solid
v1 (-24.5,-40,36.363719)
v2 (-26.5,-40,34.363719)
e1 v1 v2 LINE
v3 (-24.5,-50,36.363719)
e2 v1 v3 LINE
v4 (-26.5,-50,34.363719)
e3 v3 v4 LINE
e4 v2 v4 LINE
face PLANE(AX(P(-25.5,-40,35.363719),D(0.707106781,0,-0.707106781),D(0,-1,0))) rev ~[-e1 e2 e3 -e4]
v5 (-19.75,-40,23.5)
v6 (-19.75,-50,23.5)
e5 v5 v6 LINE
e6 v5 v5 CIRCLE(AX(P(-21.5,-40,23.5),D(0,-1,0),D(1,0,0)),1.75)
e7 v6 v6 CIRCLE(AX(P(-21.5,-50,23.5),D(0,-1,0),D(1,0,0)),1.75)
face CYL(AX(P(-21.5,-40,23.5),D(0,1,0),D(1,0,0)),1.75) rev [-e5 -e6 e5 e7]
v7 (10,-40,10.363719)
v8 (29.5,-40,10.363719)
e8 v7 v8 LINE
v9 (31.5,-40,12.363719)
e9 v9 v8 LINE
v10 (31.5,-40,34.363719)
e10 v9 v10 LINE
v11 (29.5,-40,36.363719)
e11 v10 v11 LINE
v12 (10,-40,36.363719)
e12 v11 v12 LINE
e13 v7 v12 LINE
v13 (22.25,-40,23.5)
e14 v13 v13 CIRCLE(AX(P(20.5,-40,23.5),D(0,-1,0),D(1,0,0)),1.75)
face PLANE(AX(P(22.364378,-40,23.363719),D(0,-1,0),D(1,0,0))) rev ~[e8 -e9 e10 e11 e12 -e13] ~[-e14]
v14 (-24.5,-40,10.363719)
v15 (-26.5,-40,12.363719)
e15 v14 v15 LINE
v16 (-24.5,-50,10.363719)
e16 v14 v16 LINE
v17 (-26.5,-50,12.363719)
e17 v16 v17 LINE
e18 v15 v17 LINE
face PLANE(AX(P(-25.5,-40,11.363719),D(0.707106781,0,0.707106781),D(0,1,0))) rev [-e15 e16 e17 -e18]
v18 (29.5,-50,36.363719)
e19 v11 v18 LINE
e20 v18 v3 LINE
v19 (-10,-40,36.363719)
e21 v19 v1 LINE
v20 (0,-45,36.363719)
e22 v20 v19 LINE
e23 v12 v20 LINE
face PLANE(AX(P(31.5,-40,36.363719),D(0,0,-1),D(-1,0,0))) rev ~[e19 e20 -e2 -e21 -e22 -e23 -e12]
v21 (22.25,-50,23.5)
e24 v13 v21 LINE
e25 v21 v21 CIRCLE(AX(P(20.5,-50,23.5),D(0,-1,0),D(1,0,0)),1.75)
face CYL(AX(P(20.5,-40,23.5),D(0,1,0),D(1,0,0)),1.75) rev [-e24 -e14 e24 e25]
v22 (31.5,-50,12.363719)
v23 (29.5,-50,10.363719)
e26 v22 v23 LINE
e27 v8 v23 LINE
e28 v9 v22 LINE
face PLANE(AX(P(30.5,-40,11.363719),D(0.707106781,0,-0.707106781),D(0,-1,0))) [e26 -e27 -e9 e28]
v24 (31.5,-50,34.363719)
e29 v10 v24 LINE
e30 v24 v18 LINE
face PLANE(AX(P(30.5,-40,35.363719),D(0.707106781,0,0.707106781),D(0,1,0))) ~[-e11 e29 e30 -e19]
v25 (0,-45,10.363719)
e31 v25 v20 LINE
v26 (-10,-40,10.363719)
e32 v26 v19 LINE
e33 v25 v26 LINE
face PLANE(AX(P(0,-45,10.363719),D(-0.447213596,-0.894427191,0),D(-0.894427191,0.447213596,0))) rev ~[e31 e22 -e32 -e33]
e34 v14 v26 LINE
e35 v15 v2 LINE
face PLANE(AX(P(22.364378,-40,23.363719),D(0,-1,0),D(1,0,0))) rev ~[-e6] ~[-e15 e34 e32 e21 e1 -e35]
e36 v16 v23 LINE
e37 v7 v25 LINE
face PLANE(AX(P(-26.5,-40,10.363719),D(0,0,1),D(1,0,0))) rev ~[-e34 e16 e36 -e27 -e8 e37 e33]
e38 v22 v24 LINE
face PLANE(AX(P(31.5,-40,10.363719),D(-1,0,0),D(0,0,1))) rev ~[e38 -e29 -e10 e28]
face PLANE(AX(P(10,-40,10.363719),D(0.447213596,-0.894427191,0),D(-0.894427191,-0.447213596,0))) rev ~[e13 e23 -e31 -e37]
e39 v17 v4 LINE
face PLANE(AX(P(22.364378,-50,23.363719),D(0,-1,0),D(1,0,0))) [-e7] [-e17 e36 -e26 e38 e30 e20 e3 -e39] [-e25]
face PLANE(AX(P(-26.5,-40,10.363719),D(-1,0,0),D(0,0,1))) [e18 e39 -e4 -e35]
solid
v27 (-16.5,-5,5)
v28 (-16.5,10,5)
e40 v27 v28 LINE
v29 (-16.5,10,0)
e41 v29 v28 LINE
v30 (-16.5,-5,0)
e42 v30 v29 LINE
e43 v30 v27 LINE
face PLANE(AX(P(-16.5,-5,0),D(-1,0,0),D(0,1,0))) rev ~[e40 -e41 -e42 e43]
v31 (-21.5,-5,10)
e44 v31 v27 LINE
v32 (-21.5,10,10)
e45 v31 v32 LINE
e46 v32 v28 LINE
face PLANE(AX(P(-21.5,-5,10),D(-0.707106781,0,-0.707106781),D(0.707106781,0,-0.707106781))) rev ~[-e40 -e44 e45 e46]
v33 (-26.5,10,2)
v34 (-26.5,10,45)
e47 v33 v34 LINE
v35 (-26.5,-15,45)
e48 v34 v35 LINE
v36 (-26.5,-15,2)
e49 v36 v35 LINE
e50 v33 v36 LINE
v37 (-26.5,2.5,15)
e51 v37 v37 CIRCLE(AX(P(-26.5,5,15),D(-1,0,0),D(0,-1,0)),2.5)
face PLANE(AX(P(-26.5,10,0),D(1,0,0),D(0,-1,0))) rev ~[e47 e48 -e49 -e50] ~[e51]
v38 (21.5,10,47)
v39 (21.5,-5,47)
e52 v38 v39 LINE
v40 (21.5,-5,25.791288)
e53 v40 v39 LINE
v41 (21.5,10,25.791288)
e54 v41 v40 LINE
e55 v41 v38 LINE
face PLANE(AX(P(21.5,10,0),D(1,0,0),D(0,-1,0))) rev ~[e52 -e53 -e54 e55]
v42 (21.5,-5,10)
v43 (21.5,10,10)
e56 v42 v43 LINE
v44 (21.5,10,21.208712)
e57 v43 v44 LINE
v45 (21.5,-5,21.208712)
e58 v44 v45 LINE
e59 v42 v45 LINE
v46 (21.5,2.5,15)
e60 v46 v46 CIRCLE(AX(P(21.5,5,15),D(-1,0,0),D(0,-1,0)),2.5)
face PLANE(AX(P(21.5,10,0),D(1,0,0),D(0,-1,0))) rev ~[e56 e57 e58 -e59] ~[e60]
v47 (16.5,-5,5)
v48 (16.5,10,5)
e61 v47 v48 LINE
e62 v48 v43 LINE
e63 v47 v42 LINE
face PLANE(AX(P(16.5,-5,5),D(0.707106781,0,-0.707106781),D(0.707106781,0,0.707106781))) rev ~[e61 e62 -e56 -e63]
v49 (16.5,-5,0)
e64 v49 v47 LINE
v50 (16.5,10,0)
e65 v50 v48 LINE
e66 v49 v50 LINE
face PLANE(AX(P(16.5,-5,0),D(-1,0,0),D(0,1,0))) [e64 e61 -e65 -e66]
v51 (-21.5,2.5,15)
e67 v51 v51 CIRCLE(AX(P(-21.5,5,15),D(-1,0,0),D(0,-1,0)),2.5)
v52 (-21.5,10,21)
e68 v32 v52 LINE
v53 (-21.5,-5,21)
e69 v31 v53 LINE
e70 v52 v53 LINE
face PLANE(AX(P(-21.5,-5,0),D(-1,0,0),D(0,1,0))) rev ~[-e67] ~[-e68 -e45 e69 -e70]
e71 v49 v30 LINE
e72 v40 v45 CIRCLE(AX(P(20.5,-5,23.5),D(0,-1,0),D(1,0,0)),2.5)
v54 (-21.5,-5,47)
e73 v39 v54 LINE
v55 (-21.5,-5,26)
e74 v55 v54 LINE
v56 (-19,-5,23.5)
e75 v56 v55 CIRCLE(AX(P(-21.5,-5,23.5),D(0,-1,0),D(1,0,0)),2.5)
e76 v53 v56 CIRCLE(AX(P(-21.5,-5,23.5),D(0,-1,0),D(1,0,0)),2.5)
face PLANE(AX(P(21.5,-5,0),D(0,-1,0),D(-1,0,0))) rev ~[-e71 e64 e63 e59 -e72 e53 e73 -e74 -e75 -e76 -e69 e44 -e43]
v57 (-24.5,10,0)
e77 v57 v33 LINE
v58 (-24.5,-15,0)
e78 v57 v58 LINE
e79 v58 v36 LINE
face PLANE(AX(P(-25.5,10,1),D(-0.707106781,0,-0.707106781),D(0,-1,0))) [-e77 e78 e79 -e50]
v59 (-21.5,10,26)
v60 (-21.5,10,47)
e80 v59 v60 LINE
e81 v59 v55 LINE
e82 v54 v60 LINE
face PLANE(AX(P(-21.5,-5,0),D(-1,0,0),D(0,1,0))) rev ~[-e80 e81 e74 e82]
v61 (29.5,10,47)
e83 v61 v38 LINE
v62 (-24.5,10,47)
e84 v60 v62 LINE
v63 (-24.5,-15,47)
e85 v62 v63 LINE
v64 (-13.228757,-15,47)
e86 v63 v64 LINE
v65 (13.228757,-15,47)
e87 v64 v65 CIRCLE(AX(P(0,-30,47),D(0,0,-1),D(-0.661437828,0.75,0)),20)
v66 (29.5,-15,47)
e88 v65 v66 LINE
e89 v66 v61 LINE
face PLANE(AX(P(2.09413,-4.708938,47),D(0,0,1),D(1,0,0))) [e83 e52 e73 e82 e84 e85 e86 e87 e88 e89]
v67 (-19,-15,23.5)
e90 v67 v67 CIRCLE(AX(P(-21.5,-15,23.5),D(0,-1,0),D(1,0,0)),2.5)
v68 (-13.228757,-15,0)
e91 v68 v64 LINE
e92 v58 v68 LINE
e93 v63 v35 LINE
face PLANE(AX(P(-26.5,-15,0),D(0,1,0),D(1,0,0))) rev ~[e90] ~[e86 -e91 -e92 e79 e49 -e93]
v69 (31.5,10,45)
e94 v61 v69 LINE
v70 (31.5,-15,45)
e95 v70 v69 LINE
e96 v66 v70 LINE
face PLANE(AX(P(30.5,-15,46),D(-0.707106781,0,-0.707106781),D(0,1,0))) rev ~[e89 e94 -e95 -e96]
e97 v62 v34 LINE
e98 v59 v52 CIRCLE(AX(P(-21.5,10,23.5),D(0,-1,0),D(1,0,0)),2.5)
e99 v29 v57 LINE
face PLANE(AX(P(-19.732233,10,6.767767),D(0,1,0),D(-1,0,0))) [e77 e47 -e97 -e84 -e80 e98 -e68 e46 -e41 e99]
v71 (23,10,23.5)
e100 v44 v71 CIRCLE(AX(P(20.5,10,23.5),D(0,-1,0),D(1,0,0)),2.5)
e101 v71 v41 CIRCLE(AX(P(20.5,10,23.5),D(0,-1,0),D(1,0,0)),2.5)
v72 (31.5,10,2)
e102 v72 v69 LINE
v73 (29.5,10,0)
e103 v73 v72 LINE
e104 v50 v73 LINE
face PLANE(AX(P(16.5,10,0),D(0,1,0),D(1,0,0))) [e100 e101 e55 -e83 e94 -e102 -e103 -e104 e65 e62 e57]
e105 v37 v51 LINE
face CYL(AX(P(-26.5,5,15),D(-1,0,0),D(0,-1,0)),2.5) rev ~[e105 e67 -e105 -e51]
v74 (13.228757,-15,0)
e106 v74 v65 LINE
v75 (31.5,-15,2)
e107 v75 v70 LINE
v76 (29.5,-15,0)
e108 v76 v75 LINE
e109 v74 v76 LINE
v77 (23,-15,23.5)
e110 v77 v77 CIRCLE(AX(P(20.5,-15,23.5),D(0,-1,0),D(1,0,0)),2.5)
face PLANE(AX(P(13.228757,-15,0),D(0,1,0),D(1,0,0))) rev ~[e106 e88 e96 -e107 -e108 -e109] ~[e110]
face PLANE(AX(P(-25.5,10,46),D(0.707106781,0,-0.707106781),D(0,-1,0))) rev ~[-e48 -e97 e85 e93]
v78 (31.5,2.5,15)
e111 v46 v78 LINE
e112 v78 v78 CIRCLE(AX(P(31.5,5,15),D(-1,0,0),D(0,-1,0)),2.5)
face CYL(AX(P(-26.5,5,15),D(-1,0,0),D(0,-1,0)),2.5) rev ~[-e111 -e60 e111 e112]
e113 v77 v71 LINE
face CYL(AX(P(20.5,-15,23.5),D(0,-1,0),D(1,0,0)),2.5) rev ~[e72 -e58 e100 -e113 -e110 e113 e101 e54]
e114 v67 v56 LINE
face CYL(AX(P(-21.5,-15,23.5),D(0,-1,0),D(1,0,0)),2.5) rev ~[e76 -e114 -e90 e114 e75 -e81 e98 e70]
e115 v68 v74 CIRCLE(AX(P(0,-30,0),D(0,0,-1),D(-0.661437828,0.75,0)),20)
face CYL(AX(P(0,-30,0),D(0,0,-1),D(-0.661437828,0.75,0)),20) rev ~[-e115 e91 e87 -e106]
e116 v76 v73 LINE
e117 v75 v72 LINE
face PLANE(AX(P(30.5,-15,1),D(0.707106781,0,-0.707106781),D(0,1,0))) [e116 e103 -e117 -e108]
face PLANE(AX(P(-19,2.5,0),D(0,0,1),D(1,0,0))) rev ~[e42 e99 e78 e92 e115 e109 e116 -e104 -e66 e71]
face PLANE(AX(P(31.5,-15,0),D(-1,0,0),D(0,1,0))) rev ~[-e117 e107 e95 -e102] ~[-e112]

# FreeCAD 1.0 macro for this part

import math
import FreeCAD as App
import Part
import Sketcher
Q = App.Units.Quantity


def edges_at(feature, points):
    """Names of the edges that pass closest to the given points."""
    edges = feature.Shape.Edges
    near = lambda p: min(range(len(edges)), key=lambda i: edges[i].distToShape(Part.Vertex(*p))[0])
    return sorted({f"Edge{near(p) + 1}" for p in points})

doc = App.newDocument("Part")
body = doc.addObject("PartDesign::Body", "Body")

# Sketch on XY plane
sketch1 = body.newObject("Sketcher::SketchObject", "Sketch")
sketch1.AttachmentSupport = (doc.getObject("XY_Plane"), [""])
sketch1.MapMode = "FlatFace"
sketch1.addGeometry([
    Part.LineSegment(App.Vector(-22, 10, 0), App.Vector(-26, 10, 0)),  # 0
    Part.LineSegment(App.Vector(-26, 10, 0), App.Vector(-26, -15, 0)),  # 1
    Part.LineSegment(App.Vector(-26, -15, 0), App.Vector(-13, -15, 0)),  # 2
    Part.ArcOfCircle(Part.Circle(App.Vector(0, -30, 0), App.Vector(0, 0, 1), 20), math.radians(49), math.radians(131)),  # 3
    Part.LineSegment(App.Vector(13, -15, 0), App.Vector(32, -15, 0)),  # 4
    Part.LineSegment(App.Vector(32, -15, 0), App.Vector(32, 10, 0)),  # 5
    Part.LineSegment(App.Vector(32, 10, 0), App.Vector(22, 10, 0)),  # 6
    Part.LineSegment(App.Vector(22, 10, 0), App.Vector(22, -5, 0)),  # 7
    Part.LineSegment(App.Vector(22, -5, 0), App.Vector(-22, -5, 0)),  # 8
    Part.LineSegment(App.Vector(-22, -5, 0), App.Vector(-22, 10, 0)),  # 9
], False)
sketch1.addConstraint([
    Sketcher.Constraint("Coincident", 0, 2, 1, 1),
    Sketcher.Constraint("Coincident", 1, 2, 2, 1),
    Sketcher.Constraint("Coincident", 2, 2, 3, 2),
    Sketcher.Constraint("Coincident", 3, 1, 4, 1),
    Sketcher.Constraint("Coincident", 4, 2, 5, 1),
    Sketcher.Constraint("Coincident", 5, 2, 6, 1),
    Sketcher.Constraint("Coincident", 6, 2, 7, 1),
    Sketcher.Constraint("Coincident", 7, 2, 8, 1),
    Sketcher.Constraint("Coincident", 8, 2, 9, 1),
    Sketcher.Constraint("Coincident", 9, 2, 0, 1),
    Sketcher.Constraint("Horizontal", 0),
    Sketcher.Constraint("Vertical", 1),
    Sketcher.Constraint("Horizontal", 2),
    Sketcher.Constraint("Horizontal", 4),
    Sketcher.Constraint("Vertical", 5),
    Sketcher.Constraint("Horizontal", 6),
    Sketcher.Constraint("Vertical", 7),
    Sketcher.Constraint("Horizontal", 8),
    Sketcher.Constraint("Vertical", 9),
    Sketcher.Constraint("Symmetric", 2, 2, 3, 1, -2),
    Sketcher.Constraint("Symmetric", 6, 2, 9, 2, -2),
    Sketcher.Constraint("Radius", 3, Q("20 mm")),
    Sketcher.Constraint("DistanceX", 0, 2, 0, 1, Q("5 mm")),
    Sketcher.Constraint("DistanceX", 6, 2, 6, 1, Q("10 mm")),
    Sketcher.Constraint("DistanceX", 8, 2, 8, 1, Q("43 mm")),
    Sketcher.Constraint("DistanceY", 1, 2, 1, 1, Q("25 mm")),
    Sketcher.Constraint("DistanceY", 7, 2, 7, 1, Q("15 mm")),
    Sketcher.Constraint("DistanceY", 3, 3, -1, 1, Q("30 mm")),
    Sketcher.Constraint("DistanceY", -1, 1, 0, 2, Q("10 mm")),
])
pad1 = body.newObject("PartDesign::Pad", "Pad")
pad1.Profile = sketch1
pad1.Length = 47

# Sketch on XY plane
sketch2 = body.newObject("Sketcher::SketchObject", "Sketch001")
sketch2.AttachmentSupport = (doc.getObject("XY_Plane"), [""])
sketch2.MapMode = "FlatFace"
sketch2.addGeometry([
    Part.LineSegment(App.Vector(-22, 10, 0), App.Vector(-22, -5, 0)),  # 0
    Part.LineSegment(App.Vector(-22, -5, 0), App.Vector(-16, -5, 0)),  # 1
    Part.LineSegment(App.Vector(-16, -5, 0), App.Vector(-16, 10, 0)),  # 2
    Part.LineSegment(App.Vector(-16, 10, 0), App.Vector(-22, 10, 0)),  # 3
    Part.LineSegment(App.Vector(16, 10, 0), App.Vector(16, -5, 0)),  # 4
    Part.LineSegment(App.Vector(16, -5, 0), App.Vector(22, -5, 0)),  # 5
    Part.LineSegment(App.Vector(22, -5, 0), App.Vector(22, 10, 0)),  # 6
    Part.LineSegment(App.Vector(22, 10, 0), App.Vector(16, 10, 0)),  # 7
], False)
sketch2.addConstraint([
    Sketcher.Constraint("Coincident", 0, 2, 1, 1),
    Sketcher.Constraint("Coincident", 1, 2, 2, 1),
    Sketcher.Constraint("Coincident", 2, 2, 3, 1),
    Sketcher.Constraint("Coincident", 3, 2, 0, 1),
    Sketcher.Constraint("Coincident", 4, 2, 5, 1),
    Sketcher.Constraint("Coincident", 5, 2, 6, 1),
    Sketcher.Constraint("Coincident", 6, 2, 7, 1),
    Sketcher.Constraint("Coincident", 7, 2, 4, 1),
    Sketcher.Constraint("Vertical", 0),
    Sketcher.Constraint("Horizontal", 1),
    Sketcher.Constraint("Vertical", 2),
    Sketcher.Constraint("Horizontal", 3),
    Sketcher.Constraint("Vertical", 4),
    Sketcher.Constraint("Horizontal", 5),
    Sketcher.Constraint("Vertical", 6),
    Sketcher.Constraint("Horizontal", 7),
    Sketcher.Constraint("Symmetric", 1, 2, 4, 2, -2),
    Sketcher.Constraint("Symmetric", 3, 2, 6, 2, -2),
    Sketcher.Constraint("DistanceX", 1, 1, 1, 2, Q("5 mm")),
    Sketcher.Constraint("DistanceY", 0, 2, 0, 1, Q("15 mm")),
    Sketcher.Constraint("DistanceY", 0, 2, -1, 1, Q("5 mm")),
    Sketcher.Constraint("DistanceX", 1, 2, 4, 2, Q("33 mm")),
])
pad2 = body.newObject("PartDesign::Pad", "Pad001")
pad2.Profile = sketch2
pad2.Length = 5

# Sketch on YZ plane
sketch3 = body.newObject("Sketcher::SketchObject", "Sketch002")
sketch3.AttachmentSupport = (doc.getObject("YZ_Plane"), [""])
sketch3.MapMode = "FlatFace"
sketch3.AttachmentOffset = App.Placement(App.Vector(0, 0, -26.5), App.Rotation())
sketch3.addGeometry(Part.Circle(App.Vector(5, 15, 0), App.Vector(0, 0, 1), 2.5), False)
sketch3.addConstraint([
    Sketcher.Constraint("Diameter", 0, Q("5 mm")),
    Sketcher.Constraint("DistanceX", -1, 1, 0, 3, Q("5 mm")),
    Sketcher.Constraint("DistanceY", -1, 1, 0, 3, Q("15 mm")),
])
pocket1 = body.newObject("PartDesign::Pocket", "Pocket")
pocket1.Profile = sketch3
pocket1.Length = 60
pocket1.Reversed = True

# Sketch on XZ plane
sketch4 = body.newObject("Sketcher::SketchObject", "Sketch003")
sketch4.AttachmentSupport = (doc.getObject("XZ_Plane"), [""])
sketch4.MapMode = "FlatFace"
sketch4.AttachmentOffset = App.Placement(App.Vector(0, 0, 15), App.Rotation())
sketch4.addGeometry([
    Part.Circle(App.Vector(20.5, 23.5, 0), App.Vector(0, 0, 1), 2.5),
    Part.Circle(App.Vector(-21.5, 23.5, 0), App.Vector(0, 0, 1), 2.5),
], False)
sketch4.addConstraint([
    Sketcher.Constraint("Equal", 0, 1),
    Sketcher.Constraint("Horizontal", 0, 3, 1, 3),
    Sketcher.Constraint("Diameter", 0, Q("5 mm")),
    Sketcher.Constraint("DistanceX", 1, 3, 0, 3, Q("42 mm")),
    Sketcher.Constraint("DistanceX", -1, 1, 0, 3, Q("20.5 mm")),
    Sketcher.Constraint("DistanceY", -1, 1, 0, 3, Q("23.5 mm")),
])
pocket2 = body.newObject("PartDesign::Pocket", "Pocket001")
pocket2.Profile = sketch4
pocket2.Length = 60

# Sketch on XZ plane
sketch5 = body.newObject("Sketcher::SketchObject", "Sketch004")
sketch5.AttachmentSupport = (doc.getObject("XZ_Plane"), [""])
sketch5.MapMode = "FlatFace"
sketch5.AttachmentOffset = App.Placement(App.Vector(0, 0, 5), App.Rotation())
sketch5.addGeometry([
    Part.LineSegment(App.Vector(-16, 5, 0), App.Vector(-22, 5, 0)),  # 0
    Part.LineSegment(App.Vector(-22, 5, 0), App.Vector(-22, 10, 0)),  # 1
    Part.LineSegment(App.Vector(-22, 10, 0), App.Vector(-16, 5, 0)),  # 2
    Part.LineSegment(App.Vector(22, 5, 0), App.Vector(16, 5, 0)),  # 3
    Part.LineSegment(App.Vector(16, 5, 0), App.Vector(22, 10, 0)),  # 4
    Part.LineSegment(App.Vector(22, 10, 0), App.Vector(22, 5, 0)),  # 5
], False)
sketch5.addConstraint([
    Sketcher.Constraint("Coincident", 0, 2, 1, 1),
    Sketcher.Constraint("Coincident", 1, 2, 2, 1),
    Sketcher.Constraint("Coincident", 2, 2, 0, 1),
    Sketcher.Constraint("Coincident", 3, 2, 4, 1),
    Sketcher.Constraint("Coincident", 4, 2, 5, 1),
    Sketcher.Constraint("Coincident", 5, 2, 3, 1),
    Sketcher.Constraint("Horizontal", 0),
    Sketcher.Constraint("Vertical", 1),
    Sketcher.Constraint("Horizontal", 3),
    Sketcher.Constraint("Vertical", 5),
    Sketcher.Constraint("Symmetric", 2, 2, 3, 2, -2),
    Sketcher.Constraint("Symmetric", 1, 2, 4, 2, -2),
    Sketcher.Constraint("Perpendicular", 2, 4),
    Sketcher.Constraint("DistanceX", 0, 2, 0, 1, Q("5 mm")),
    Sketcher.Constraint("DistanceY", -1, 1, 0, 2, Q("5 mm")),
    Sketcher.Constraint("DistanceX", 2, 2, 3, 2, Q("33 mm")),
])
pad3 = body.newObject("PartDesign::Pad", "Pad002")
pad3.Profile = sketch5
pad3.Length = 15
pad3.Reversed = True
doc.recompute()

chamfer = body.newObject("PartDesign::Chamfer", "Chamfer")
chamfer.Base = (pad3, edges_at(pad3, [
    (31.5, -2.5, 0),
    (-26.5, -2.5, 0),
    (-26.5, -2.5, 47),
    (31.5, -2.5, 47),
]))
chamfer.Size = 2
body2 = doc.addObject("PartDesign::Body", "Body001")

# Sketch on XZ plane
sketch6 = body2.newObject("Sketcher::SketchObject", "Sketch005")
sketch6.AttachmentSupport = (doc.getObject("XZ_Plane001"), [""])
sketch6.MapMode = "FlatFace"
sketch6.AttachmentOffset = App.Placement(App.Vector(0, 0, 40), App.Rotation())
sketch6.addGeometry([
    Part.LineSegment(App.Vector(31.5, 10.4, 0), App.Vector(31.5, 36.4, 0)),  # 0
    Part.LineSegment(App.Vector(31.5, 36.4, 0), App.Vector(-26.5, 36.4, 0)),  # 1
    Part.LineSegment(App.Vector(-26.5, 36.4, 0), App.Vector(-26.5, 10.4, 0)),  # 2
    Part.LineSegment(App.Vector(-26.5, 10.4, 0), App.Vector(31.5, 10.4, 0)),  # 3
    Part.Circle(App.Vector(-21.5, 23.5, 0), App.Vector(0, 0, 1), 1.8),  # 4
    Part.Circle(App.Vector(20.5, 23.5, 0), App.Vector(0, 0, 1), 1.8),  # 5
], False)
sketch6.addConstraint([
    Sketcher.Constraint("Coincident", 0, 2, 1, 1),
    Sketcher.Constraint("Coincident", 1, 2, 2, 1),
    Sketcher.Constraint("Coincident", 2, 2, 3, 1),
    Sketcher.Constraint("Coincident", 3, 2, 0, 1),
    Sketcher.Constraint("Vertical", 0),
    Sketcher.Constraint("Horizontal", 1),
    Sketcher.Constraint("Vertical", 2),
    Sketcher.Constraint("Horizontal", 3),
    Sketcher.Constraint("Equal", 4, 5),
    Sketcher.Constraint("Horizontal", 4, 3, 5, 3),
    Sketcher.Constraint("Diameter", 4, Q("3.5 mm")),
    Sketcher.Constraint("DistanceX", 1, 2, 1, 1, Q("58 mm")),
    Sketcher.Constraint("DistanceY", 0, 1, 0, 2, Q("26 mm")),
    Sketcher.Constraint("DistanceX", 4, 3, 5, 3, Q("42 mm")),
    Sketcher.Constraint("DistanceX", 5, 3, 0, 2, Q("11 mm")),
    Sketcher.Constraint("DistanceX", 4, 3, -1, 1, Q("21.5 mm")),
    Sketcher.Constraint("DistanceY", -1, 1, 4, 3, Q("23.5 mm")),
    Sketcher.Constraint("DistanceY", -1, 1, 0, 2, Q("36.363719 mm")),
])
pad4 = body2.newObject("PartDesign::Pad", "Pad003")
pad4.Profile = sketch6
pad4.Length = 10
doc.recompute()

chamfer2 = body2.newObject("PartDesign::Chamfer", "Chamfer001")
chamfer2.Base = (pad4, edges_at(pad4, [
    (-26.5, -45, 10.364),
    (-26.5, -45, 36.364),
    (31.5, -45, 36.364),
    (31.5, -45, 10.364),
]))
chamfer2.Size = 2

# Sketch on XY plane
sketch7 = body2.newObject("Sketcher::SketchObject", "Sketch006")
sketch7.AttachmentSupport = (doc.getObject("XY_Plane001"), [""])
sketch7.MapMode = "FlatFace"
sketch7.AttachmentOffset = App.Placement(App.Vector(0, 0, 10.363719), App.Rotation())
sketch7.addGeometry([
    Part.LineSegment(App.Vector(10, -40, 0), App.Vector(0, -45, 0)),
    Part.LineSegment(App.Vector(0, -45, 0), App.Vector(-10, -40, 0)),
    Part.LineSegment(App.Vector(-10, -40, 0), App.Vector(10, -40, 0)),
], False)
sketch7.addConstraint([
    Sketcher.Constraint("Coincident", 0, 2, 1, 1),
    Sketcher.Constraint("Coincident", 1, 2, 2, 1),
    Sketcher.Constraint("Coincident", 2, 2, 0, 1),
    Sketcher.Constraint("Horizontal", 2),
    Sketcher.Constraint("PointOnObject", 0, 2, -2),
    Sketcher.Constraint("Equal", 0, 1),
    Sketcher.Constraint("DistanceX", 2, 1, 2, 2, Q("20 mm")),
    Sketcher.Constraint("DistanceY", 0, 2, -1, 1, Q("45 mm")),
    Sketcher.Constraint("DistanceY", 1, 2, -1, 1, Q("40 mm")),
])
pocket3 = body2.newObject("PartDesign::Pocket", "Pocket002")
pocket3.Profile = sketch7
pocket3.Length = 40
pocket3.Reversed = True

doc.recompute()
